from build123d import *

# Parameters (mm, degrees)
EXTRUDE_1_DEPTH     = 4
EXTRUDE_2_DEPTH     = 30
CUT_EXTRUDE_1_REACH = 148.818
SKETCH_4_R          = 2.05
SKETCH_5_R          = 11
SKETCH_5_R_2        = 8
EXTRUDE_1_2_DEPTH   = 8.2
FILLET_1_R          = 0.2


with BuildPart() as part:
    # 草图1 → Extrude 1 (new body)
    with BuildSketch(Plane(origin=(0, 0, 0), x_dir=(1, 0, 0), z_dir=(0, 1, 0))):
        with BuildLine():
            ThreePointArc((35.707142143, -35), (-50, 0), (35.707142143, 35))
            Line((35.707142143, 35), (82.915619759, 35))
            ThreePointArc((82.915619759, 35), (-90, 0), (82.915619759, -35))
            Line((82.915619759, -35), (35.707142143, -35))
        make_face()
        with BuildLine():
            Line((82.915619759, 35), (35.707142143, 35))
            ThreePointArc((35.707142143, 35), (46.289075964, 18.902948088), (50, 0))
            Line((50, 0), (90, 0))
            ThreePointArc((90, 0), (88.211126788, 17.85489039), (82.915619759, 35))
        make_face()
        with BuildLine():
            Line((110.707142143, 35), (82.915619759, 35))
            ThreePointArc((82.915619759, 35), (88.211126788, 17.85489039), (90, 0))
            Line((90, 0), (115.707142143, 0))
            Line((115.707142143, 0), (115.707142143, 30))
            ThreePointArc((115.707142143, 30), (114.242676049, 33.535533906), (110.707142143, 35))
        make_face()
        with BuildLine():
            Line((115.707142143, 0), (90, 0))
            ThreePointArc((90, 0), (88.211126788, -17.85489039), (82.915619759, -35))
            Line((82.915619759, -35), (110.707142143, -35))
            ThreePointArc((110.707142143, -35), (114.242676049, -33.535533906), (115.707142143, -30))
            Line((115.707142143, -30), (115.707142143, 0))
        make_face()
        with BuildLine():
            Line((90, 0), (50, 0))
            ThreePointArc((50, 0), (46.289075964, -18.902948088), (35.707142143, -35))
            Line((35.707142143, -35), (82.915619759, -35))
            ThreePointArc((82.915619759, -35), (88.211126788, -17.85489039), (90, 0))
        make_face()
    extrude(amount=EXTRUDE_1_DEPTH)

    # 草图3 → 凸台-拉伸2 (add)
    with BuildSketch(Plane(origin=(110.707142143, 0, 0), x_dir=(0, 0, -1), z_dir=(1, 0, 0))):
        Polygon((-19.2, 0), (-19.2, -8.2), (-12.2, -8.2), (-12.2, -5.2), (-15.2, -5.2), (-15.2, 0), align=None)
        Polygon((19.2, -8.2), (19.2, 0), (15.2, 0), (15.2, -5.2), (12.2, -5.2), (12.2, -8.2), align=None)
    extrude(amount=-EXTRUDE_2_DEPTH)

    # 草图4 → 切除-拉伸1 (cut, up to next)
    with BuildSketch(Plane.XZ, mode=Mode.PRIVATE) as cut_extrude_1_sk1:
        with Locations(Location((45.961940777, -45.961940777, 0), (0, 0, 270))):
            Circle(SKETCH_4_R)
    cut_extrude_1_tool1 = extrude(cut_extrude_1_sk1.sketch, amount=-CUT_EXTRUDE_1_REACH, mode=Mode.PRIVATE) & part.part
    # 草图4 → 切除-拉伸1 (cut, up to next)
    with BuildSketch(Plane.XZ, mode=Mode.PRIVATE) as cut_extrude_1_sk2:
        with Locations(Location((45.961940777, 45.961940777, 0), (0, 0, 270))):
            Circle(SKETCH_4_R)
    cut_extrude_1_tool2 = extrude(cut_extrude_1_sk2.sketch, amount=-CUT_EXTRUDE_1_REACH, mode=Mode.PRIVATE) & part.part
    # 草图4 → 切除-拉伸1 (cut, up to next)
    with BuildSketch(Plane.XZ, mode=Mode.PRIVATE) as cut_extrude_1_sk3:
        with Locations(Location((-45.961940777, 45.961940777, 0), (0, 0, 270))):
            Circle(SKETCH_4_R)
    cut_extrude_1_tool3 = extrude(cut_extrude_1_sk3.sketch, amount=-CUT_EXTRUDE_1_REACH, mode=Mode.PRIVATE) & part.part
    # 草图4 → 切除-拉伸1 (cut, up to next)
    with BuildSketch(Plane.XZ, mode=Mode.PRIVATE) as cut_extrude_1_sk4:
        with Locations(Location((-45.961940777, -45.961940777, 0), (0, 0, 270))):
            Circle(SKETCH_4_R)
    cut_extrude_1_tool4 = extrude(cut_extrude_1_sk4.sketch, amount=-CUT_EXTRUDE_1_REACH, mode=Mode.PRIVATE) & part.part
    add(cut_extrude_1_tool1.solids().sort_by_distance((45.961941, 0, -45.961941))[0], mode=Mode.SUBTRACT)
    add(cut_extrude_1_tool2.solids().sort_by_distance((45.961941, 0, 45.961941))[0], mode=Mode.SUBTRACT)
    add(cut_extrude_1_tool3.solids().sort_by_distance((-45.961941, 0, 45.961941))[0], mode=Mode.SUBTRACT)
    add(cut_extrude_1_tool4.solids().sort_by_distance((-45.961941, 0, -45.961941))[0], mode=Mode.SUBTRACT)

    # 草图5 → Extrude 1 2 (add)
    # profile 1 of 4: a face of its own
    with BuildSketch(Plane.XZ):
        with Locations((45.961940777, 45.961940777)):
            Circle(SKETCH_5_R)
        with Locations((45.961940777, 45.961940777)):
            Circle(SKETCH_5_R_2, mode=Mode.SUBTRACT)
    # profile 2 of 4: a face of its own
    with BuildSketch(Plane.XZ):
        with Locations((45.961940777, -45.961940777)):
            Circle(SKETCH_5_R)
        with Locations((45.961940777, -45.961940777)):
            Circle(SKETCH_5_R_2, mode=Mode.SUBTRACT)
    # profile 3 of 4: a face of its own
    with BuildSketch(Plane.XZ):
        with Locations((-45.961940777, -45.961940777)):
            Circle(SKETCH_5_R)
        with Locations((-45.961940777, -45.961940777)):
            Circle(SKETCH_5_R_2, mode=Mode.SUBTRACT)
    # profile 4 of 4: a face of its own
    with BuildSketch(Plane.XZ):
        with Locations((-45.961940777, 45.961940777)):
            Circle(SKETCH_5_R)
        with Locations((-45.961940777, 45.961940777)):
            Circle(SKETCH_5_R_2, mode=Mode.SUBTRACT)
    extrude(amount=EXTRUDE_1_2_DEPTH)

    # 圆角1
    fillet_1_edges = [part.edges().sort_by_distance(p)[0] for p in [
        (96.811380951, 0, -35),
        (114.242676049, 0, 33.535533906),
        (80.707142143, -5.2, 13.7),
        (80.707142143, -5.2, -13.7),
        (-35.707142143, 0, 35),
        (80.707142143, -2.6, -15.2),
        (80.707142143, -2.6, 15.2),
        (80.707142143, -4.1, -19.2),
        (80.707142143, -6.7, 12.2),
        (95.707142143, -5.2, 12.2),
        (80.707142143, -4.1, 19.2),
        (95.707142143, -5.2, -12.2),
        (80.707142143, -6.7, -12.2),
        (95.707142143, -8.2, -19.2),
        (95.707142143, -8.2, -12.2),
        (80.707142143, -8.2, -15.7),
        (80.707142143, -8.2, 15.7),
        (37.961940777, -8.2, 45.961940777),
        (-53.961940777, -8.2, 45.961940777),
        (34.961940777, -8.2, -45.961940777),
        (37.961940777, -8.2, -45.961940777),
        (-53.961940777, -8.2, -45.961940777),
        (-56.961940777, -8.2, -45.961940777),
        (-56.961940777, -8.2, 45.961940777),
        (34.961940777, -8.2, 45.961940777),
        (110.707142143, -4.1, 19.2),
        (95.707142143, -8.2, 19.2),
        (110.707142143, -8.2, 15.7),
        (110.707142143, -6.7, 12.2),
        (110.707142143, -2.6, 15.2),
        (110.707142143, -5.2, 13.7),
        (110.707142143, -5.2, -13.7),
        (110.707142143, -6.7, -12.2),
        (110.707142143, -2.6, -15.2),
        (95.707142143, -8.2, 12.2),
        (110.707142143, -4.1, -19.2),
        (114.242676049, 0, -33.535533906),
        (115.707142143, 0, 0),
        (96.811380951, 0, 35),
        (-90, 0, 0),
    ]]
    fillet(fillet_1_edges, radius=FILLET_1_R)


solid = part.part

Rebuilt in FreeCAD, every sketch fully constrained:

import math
import FreeCAD as App
import Part
import Sketcher

V = App.Vector


def edges_at(feature, points):
    """Names of the edges that pass closest to the given points."""
    edges = feature.Shape.Edges
    near = lambda p: min(range(len(edges)), key=lambda i: edges[i].distToShape(Part.Vertex(*p))[0])
    return sorted({f"Edge{near(p) + 1}" for p in points})


def add_polygon(sketch, points):
    """Adds a closed chain of lines whose ends are joined by coincident constraints."""
    first, n = sketch.GeometryCount, len(points)
    for a, b in zip(points, points[1:] + points[:1]):
        sketch.addGeometry(Part.LineSegment(App.Vector(*a, 0), App.Vector(*b, 0)), False)
    for i in range(n):
        sketch.addConstraint(Sketcher.Constraint("Coincident", first + i, 2, first + (i + 1) % n, 1))

doc = App.newDocument("Part")
body = doc.addObject("PartDesign::Body", "Body")

# Sketch on XZ plane
sketch1 = body.newObject("Sketcher::SketchObject", "Sketch")
sketch1.AttachmentSupport = (doc.getObject("XZ_Plane"), [""])
sketch1.MapMode = "FlatFace"
sketch1.addGeometry([
    Part.ArcOfCircle(Part.Circle(V(0, 0, 0), V(0, 0, 1), 90), math.radians(22.88538), math.radians(337.11462)),  # 0
    Part.LineSegment(V(82.91562, 35, 0), V(110.707142, 35, 0)),  # 1
    Part.ArcOfCircle(Part.Circle(V(110.707142, 30, 0), V(0, 0, 1), 5), math.radians(0), math.radians(90)),  # 2
    Part.LineSegment(V(115.707142, 30, 0), V(115.707142, -30, 0)),  # 3
    Part.ArcOfCircle(Part.Circle(V(110.707142, -30, 0), V(0, 0, 1), 5), math.radians(-90), math.radians(0)),  # 4
    Part.LineSegment(V(110.707142, -35, 0), V(82.91562, -35, 0)),  # 5
    Part.ArcOfCircle(Part.Circle(V(0, 0, 0), V(0, 0, 1), 50), math.radians(-44.427004), math.radians(0)),  # 6
    Part.ArcOfCircle(Part.Circle(V(0, 0, 0), V(0, 0, 1), 50), math.radians(0), math.radians(44.427004)),  # 7
    Part.ArcOfCircle(Part.Circle(V(0, 0, 0), V(0, 0, 1), 50), math.radians(44.427004), math.radians(315.572996)),  # 8
], False)
sketch1.addConstraint([
    Sketcher.Constraint("Coincident", 0, 1, 1, 1),
    Sketcher.Constraint("Tangent", 1, 2, 2, 2),
    Sketcher.Constraint("Tangent", 2, 1, 3, 1),
    Sketcher.Constraint("Tangent", 3, 2, 4, 2),
    Sketcher.Constraint("Tangent", 4, 1, 5, 1),
    Sketcher.Constraint("Coincident", 5, 2, 0, 2),
    Sketcher.Constraint("Tangent", 6, 2, 7, 1),
    Sketcher.Constraint("Tangent", 7, 2, 8, 1),
    Sketcher.Constraint("Tangent", 8, 2, 6, 1),
    Sketcher.Constraint("Horizontal", 1),
    Sketcher.Constraint("Vertical", 3),
    Sketcher.Constraint("Horizontal", 5),
    Sketcher.Constraint("Coincident", 0, 3, -1, 1),
    Sketcher.Constraint("Coincident", 6, 3, -1, 1),
    Sketcher.Constraint("Equal", 2, 4),
    Sketcher.Constraint("PointOnObject", 6, 2, -1),
    Sketcher.Constraint("Horizontal", 1, 2, 7, 2),
    Sketcher.Constraint("Horizontal", 5, 2, 8, 2),
    Sketcher.Constraint("Vertical", 0, 1, 5, 2),
    Sketcher.Constraint("Radius", 0, 90.0),
    Sketcher.Constraint("Radius", 2, 5.0),
    Sketcher.Constraint("Radius", 6, 50.0),
    Sketcher.Constraint("DistanceY", 3, 2, 3, 1, 60.0),
    Sketcher.Constraint("DistanceX", 1, 1, 1, 2, 27.791522),
])
pad1 = body.newObject("PartDesign::Pad", "Pad")
pad1.Profile = sketch1
pad1.Length = 4
pad1.Reversed = True

# Sketch on YZ plane
sketch2 = body.newObject("Sketcher::SketchObject", "Sketch001")
sketch2.AttachmentSupport = (doc.getObject("YZ_Plane"), [""])
sketch2.MapMode = "FlatFace"
sketch2.AttachmentOffset = App.Placement(V(0, 0, 110.707142), App.Rotation())
add_polygon(sketch2, [(0, 19.2), (-8.2, 19.2), (-8.2, 12.2), (-5.2, 12.2), (-5.2, 15.2), (0, 15.2)])  # lines 0-5
add_polygon(sketch2, [(-8.2, -19.2), (0, -19.2), (0, -15.2), (-5.2, -15.2), (-5.2, -12.2), (-8.2, -12.2)])  # lines 6-11
sketch2.addConstraint([
    Sketcher.Constraint("Horizontal", 0),
    Sketcher.Constraint("Vertical", 1),
    Sketcher.Constraint("Horizontal", 2),
    Sketcher.Constraint("Vertical", 3),
    Sketcher.Constraint("Horizontal", 4),
    Sketcher.Constraint("Vertical", 5),
    Sketcher.Constraint("Horizontal", 6),
    Sketcher.Constraint("Vertical", 7),
    Sketcher.Constraint("Horizontal", 8),
    Sketcher.Constraint("Vertical", 9),
    Sketcher.Constraint("Horizontal", 10),
    Sketcher.Constraint("Vertical", 11),
    Sketcher.Constraint("Symmetric", 5, 2, 6, 2, -1, 1),
    Sketcher.Constraint("Symmetric", 4, 2, 7, 2, -1),
    Sketcher.Constraint("Symmetric", 2, 2, 9, 2, -1),
    Sketcher.Constraint("Vertical", 1, 2, 10, 2),
    Sketcher.Constraint("Equal", 10, 3),
    Sketcher.Constraint("DistanceX", 2, 1, 2, 2, 3.0),
    Sketcher.Constraint("DistanceY", 1, 2, 1, 1, 7.0),
    Sketcher.Constraint("DistanceX", 0, 2, 0, 1, 8.2),
    Sketcher.Constraint("DistanceY", -1, 1, 0, 2, 19.2),
])
pad2 = body.newObject("PartDesign::Pad", "Pad001")
pad2.Profile = sketch2
pad2.Length = 30
pad2.Reversed = True

# Sketch on XZ plane
sketch3 = body.newObject("Sketcher::SketchObject", "Sketch002")
sketch3.AttachmentSupport = (doc.getObject("XZ_Plane"), [""])
sketch3.MapMode = "FlatFace"
sketch3.addGeometry(Part.Circle(V(45.961941, -45.961941, 0), V(0, 0, 1), 2.05), False)
sketch3.addConstraint([
    Sketcher.Constraint("Diameter", 0, 4.1),
    Sketcher.Constraint("DistanceX", -1, 1, 0, 3, 45.961941),
    Sketcher.Constraint("DistanceY", 0, 3, -1, 1, 45.961941),
])
pocket1 = body.newObject("PartDesign::Pocket", "Pocket")
pocket1.Profile = sketch3
pocket1.Type = "UpToFirst"

# Sketch on XZ plane
sketch4 = body.newObject("Sketcher::SketchObject", "Sketch003")
sketch4.AttachmentSupport = (doc.getObject("XZ_Plane"), [""])
sketch4.MapMode = "FlatFace"
sketch4.addGeometry(Part.Circle(V(45.961941, 45.961941, 0), V(0, 0, 1), 2.05), False)
sketch4.addConstraint([
    Sketcher.Constraint("Diameter", 0, 4.1),
    Sketcher.Constraint("DistanceX", -1, 1, 0, 3, 45.961941),
    Sketcher.Constraint("DistanceY", -1, 1, 0, 3, 45.961941),
])
pocket2 = body.newObject("PartDesign::Pocket", "Pocket001")
pocket2.Profile = sketch4
pocket2.Type = "UpToFirst"

# Sketch on XZ plane
sketch5 = body.newObject("Sketcher::SketchObject", "Sketch004")
sketch5.AttachmentSupport = (doc.getObject("XZ_Plane"), [""])
sketch5.MapMode = "FlatFace"
sketch5.addGeometry(Part.Circle(V(-45.961941, 45.961941, 0), V(0, 0, 1), 2.05), False)
sketch5.addConstraint([
    Sketcher.Constraint("Diameter", 0, 4.1),
    Sketcher.Constraint("DistanceX", 0, 3, -1, 1, 45.961941),
    Sketcher.Constraint("DistanceY", -1, 1, 0, 3, 45.961941),
])
pocket3 = body.newObject("PartDesign::Pocket", "Pocket002")
pocket3.Profile = sketch5
pocket3.Type = "UpToFirst"

# Sketch on XZ plane
sketch6 = body.newObject("Sketcher::SketchObject", "Sketch005")
sketch6.AttachmentSupport = (doc.getObject("XZ_Plane"), [""])
sketch6.MapMode = "FlatFace"
sketch6.addGeometry(Part.Circle(V(-45.961941, -45.961941, 0), V(0, 0, 1), 2.05), False)
sketch6.addConstraint([
    Sketcher.Constraint("Diameter", 0, 4.1),
    Sketcher.Constraint("DistanceX", 0, 3, -1, 1, 45.961941),
    Sketcher.Constraint("DistanceY", 0, 3, -1, 1, 45.961941),
])
pocket4 = body.newObject("PartDesign::Pocket", "Pocket003")
pocket4.Profile = sketch6
pocket4.Type = "UpToFirst"

# Sketch on XZ plane
sketch7 = body.newObject("Sketcher::SketchObject", "Sketch006")
sketch7.AttachmentSupport = (doc.getObject("XZ_Plane"), [""])
sketch7.MapMode = "FlatFace"
sketch7.addGeometry([
    Part.Circle(V(45.961941, 45.961941, 0), V(0, 0, 1), 11),  # 0
    Part.Circle(V(45.961941, 45.961941, 0), V(0, 0, 1), 8),  # 1
    Part.Circle(V(45.961941, -45.961941, 0), V(0, 0, 1), 11),  # 2
    Part.Circle(V(45.961941, -45.961941, 0), V(0, 0, 1), 8),  # 3
    Part.Circle(V(-45.961941, -45.961941, 0), V(0, 0, 1), 11),  # 4
    Part.Circle(V(-45.961941, -45.961941, 0), V(0, 0, 1), 8),  # 5
    Part.Circle(V(-45.961941, 45.961941, 0), V(0, 0, 1), 11),  # 6
    Part.Circle(V(-45.961941, 45.961941, 0), V(0, 0, 1), 8),  # 7
], False)
sketch7.addConstraint([
    Sketcher.Constraint("Coincident", 1, 3, 0, 3),
    Sketcher.Constraint("Coincident", 3, 3, 2, 3),
    Sketcher.Constraint("Coincident", 5, 3, 4, 3),
    Sketcher.Constraint("Coincident", 7, 3, 6, 3),
    Sketcher.Constraint("Equal", 0, 2),
    Sketcher.Constraint("Equal", 1, 3),
    Sketcher.Constraint("Equal", 2, 4),
    Sketcher.Constraint("Equal", 3, 5),
    Sketcher.Constraint("Equal", 4, 6),
    Sketcher.Constraint("Equal", 5, 7),
    Sketcher.Constraint("Symmetric", 0, 3, 4, 3, -1, 1),
    Sketcher.Constraint("Symmetric", 2, 3, 6, 3, -1, 1),
    Sketcher.Constraint("Symmetric", 2, 3, 4, 3, -2),
    Sketcher.Constraint("Diameter", 0, 22.0),
    Sketcher.Constraint("Diameter", 1, 16.0),
    Sketcher.Constraint("DistanceX", -1, 1, 0, 3, 45.961941),
    Sketcher.Constraint("DistanceY", -1, 1, 0, 3, 45.961941),
])
pad3 = body.newObject("PartDesign::Pad", "Pad002")
pad3.Profile = sketch7
pad3.Length = 8.2
doc.recompute()

fillet = body.newObject("PartDesign::Fillet", "Fillet")
fillet.Base = (pad3, edges_at(pad3, [
    (96.811, 0, -35),
    (114.243, 0, 33.536),
    (80.707, -5.2, 13.7),
    (80.707, -5.2, -13.7),
    (-50, 0, 0),
    (80.707, -2.6, -15.2),
    (80.707, -2.6, 15.2),
    (80.707, -4.1, -19.2),
    (80.707, -6.7, 12.2),
    (95.707, -5.2, 12.2),
    (80.707, -4.1, 19.2),
    (95.707, -5.2, -12.2),
    (80.707, -6.7, -12.2),
    (95.707, -8.2, -19.2),
    (95.707, -8.2, -12.2),
    (80.707, -8.2, -15.7),
    (80.707, -8.2, 15.7),
    (37.962, -8.2, 45.962),
    (-53.962, -8.2, 45.962),
    (34.962, -8.2, -45.962),
    (37.962, -8.2, -45.962),
    (-53.962, -8.2, -45.962),
    (-56.962, -8.2, -45.962),
    (-56.962, -8.2, 45.962),
    (34.962, -8.2, 45.962),
    (110.707, -4.1, 19.2),
    (95.707, -8.2, 19.2),
    (110.707, -8.2, 15.7),
    (110.707, -6.7, 12.2),
    (110.707, -2.6, 15.2),
    (110.707, -5.2, 13.7),
    (110.707, -5.2, -13.7),
    (110.707, -6.7, -12.2),
    (110.707, -2.6, -15.2),
    (95.707, -8.2, 12.2),
    (110.707, -4.1, -19.2),
    (114.243, 0, -33.536),
    (115.707, 0, 0),
    (96.811, 0, 35),
    (-90, 0, 0),
]))
fillet.Radius = 0.2

doc.recompute()
